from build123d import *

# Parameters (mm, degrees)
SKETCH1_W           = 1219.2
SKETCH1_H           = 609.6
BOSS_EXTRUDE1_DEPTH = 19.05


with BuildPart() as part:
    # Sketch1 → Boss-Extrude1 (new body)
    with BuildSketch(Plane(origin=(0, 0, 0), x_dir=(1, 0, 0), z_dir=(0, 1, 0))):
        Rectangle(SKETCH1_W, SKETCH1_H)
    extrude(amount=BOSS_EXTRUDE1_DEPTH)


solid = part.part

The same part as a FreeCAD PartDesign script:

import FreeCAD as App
import Part
import Sketcher
Q = App.Units.Quantity

doc = App.newDocument("Part")
body = doc.addObject("PartDesign::Body", "Body")

sketch1 = doc.addObject("Sketcher::SketchObject", "Sketch")
body.addObject(sketch1)
sketch1.AttachmentSupport = (doc.XZ_Plane, [""])
sketch1.MapMode = "FlatFace"
sketch1.addGeometry([
    Part.LineSegment(App.Vector(-610, -305, 0), App.Vector(-610, 305, 0)),
    Part.LineSegment(App.Vector(-610, 305, 0), App.Vector(610, 305, 0)),
    Part.LineSegment(App.Vector(610, 305, 0), App.Vector(610, -305, 0)),
    Part.LineSegment(App.Vector(610, -305, 0), App.Vector(-610, -305, 0)),
], False)
sketch1.addConstraint([
    Sketcher.Constraint("Coincident", 0, 2, 1, 1),
    Sketcher.Constraint("Coincident", 1, 2, 2, 1),
    Sketcher.Constraint("Coincident", 2, 2, 3, 1),
    Sketcher.Constraint("Coincident", 3, 2, 0, 1),
    Sketcher.Constraint("Vertical", 0),
    Sketcher.Constraint("Horizontal", 1),
    Sketcher.Constraint("Vertical", 2),
    Sketcher.Constraint("Horizontal", 3),
    Sketcher.Constraint("Symmetric", 0, 2, 2, 2, -1, 1),
    Sketcher.Constraint("DistanceX", 1, 1, 1, 2, Q("48 in")),
    Sketcher.Constraint("DistanceY", 0, 1, 0, 2, Q("24 in")),
])
pad1 = doc.addObject("PartDesign::Pad", "Pad")
body.addObject(pad1)
pad1.Profile = sketch1
pad1.Length = Q("0.75 in")
pad1.Reversed = True

doc.recompute()
